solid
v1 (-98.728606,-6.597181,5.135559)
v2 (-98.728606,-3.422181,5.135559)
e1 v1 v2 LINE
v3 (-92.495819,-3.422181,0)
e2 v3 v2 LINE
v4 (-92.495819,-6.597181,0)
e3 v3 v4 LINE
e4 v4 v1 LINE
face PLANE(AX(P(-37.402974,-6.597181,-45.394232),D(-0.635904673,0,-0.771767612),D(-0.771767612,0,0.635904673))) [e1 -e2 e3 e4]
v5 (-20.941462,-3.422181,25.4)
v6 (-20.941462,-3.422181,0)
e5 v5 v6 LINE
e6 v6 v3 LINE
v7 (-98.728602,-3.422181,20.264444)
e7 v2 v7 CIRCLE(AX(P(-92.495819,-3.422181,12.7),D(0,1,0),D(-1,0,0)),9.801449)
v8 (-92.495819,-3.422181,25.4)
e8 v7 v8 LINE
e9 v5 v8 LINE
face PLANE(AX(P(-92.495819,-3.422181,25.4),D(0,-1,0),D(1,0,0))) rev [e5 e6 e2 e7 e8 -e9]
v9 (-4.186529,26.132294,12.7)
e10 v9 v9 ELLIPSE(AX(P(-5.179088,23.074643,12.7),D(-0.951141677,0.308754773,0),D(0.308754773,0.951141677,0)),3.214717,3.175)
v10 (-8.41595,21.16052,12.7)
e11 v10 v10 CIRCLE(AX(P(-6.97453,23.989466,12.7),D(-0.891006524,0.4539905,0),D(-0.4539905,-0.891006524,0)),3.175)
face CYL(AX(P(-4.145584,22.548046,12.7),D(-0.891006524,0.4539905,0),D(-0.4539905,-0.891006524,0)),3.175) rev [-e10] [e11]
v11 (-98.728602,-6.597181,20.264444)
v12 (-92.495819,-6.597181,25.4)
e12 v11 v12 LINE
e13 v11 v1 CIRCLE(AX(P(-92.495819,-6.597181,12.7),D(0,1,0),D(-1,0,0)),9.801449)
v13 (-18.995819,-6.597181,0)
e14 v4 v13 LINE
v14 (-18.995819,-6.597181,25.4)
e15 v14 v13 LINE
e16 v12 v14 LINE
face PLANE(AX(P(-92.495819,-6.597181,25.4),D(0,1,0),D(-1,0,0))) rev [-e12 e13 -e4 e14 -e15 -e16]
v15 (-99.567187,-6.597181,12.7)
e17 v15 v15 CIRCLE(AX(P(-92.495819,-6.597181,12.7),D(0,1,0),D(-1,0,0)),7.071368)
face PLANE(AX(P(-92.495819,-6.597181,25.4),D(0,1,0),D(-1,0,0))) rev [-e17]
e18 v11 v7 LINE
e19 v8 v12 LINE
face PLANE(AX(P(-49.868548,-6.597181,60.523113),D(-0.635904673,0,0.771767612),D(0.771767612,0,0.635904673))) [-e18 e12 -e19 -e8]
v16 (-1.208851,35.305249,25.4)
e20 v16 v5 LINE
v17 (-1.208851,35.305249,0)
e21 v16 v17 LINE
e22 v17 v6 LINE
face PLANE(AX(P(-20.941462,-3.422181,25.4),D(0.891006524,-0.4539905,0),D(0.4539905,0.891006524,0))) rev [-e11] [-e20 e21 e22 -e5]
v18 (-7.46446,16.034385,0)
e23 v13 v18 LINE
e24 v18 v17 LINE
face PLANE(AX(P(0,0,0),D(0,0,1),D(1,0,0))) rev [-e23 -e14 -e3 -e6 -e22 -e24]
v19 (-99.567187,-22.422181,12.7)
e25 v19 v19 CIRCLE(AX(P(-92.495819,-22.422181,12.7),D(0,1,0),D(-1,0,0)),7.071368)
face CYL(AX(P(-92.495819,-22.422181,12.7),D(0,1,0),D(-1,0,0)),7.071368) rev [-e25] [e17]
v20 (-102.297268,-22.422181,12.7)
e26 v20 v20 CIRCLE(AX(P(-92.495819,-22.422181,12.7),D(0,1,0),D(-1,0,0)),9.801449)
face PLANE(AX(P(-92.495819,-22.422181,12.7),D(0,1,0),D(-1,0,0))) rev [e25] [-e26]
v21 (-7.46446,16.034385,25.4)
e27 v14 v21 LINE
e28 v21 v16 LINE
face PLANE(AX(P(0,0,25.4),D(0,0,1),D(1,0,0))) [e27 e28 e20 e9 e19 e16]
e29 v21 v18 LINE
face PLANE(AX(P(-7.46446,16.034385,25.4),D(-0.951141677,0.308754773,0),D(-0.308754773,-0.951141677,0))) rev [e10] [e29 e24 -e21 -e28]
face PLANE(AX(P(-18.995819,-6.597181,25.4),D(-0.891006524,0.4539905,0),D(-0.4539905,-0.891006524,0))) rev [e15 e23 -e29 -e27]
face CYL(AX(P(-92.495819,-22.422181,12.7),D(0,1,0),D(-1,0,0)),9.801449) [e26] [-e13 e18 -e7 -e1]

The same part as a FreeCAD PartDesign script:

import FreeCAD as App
import Part
import Sketcher
from FreeCAD import Vector
Q = App.Units.Quantity


def add_polygon(sketch, points):
    """Adds a closed chain of lines whose ends are joined by coincident constraints."""
    first, n = sketch.GeometryCount, len(points)
    for a, b in zip(points, points[1:] + points[:1]):
        sketch.addGeometry(Part.LineSegment(App.Vector(*a, 0), App.Vector(*b, 0)), False)
    for i in range(n):
        sketch.addConstraint(Sketcher.Constraint("Coincident", first + i, 2, first + (i + 1) % n, 1))

doc = App.newDocument("Part")
body = doc.addObject("PartDesign::Body", "Body")

# Sketch on XY plane
sketch1 = body.newObject("Sketcher::SketchObject", "Sketch")
sketch1.AttachmentSupport = (doc.getObject("XY_Plane"), [""])
sketch1.MapMode = "FlatFace"
add_polygon(sketch1, [(-20.9, -3.4), (-92.5, -3.4), (-92.5, -6.6), (-19, -6.6), (-7.5, 16), (-1.2, 35.3)])  # lines 0-5
sketch1.addConstraint([
    Sketcher.Constraint("Horizontal", 0),
    Sketcher.Constraint("Vertical", 1),
    Sketcher.Constraint("Horizontal", 2),
    Sketcher.Constraint("Parallel", 3, 5),
    Sketcher.Constraint("Distance", 3, Q("1 in")),
    Sketcher.Constraint("Angle", 3, Q("63 deg")),
    Sketcher.Constraint("DistanceY", 1, 2, 1, 1, Q("0.125 in")),
    Sketcher.Constraint("DistanceX", 2, 1, 2, 2, 73.5),
    Sketcher.Constraint("DistanceX", 5, 2, 2, 2, Q("0.0766001 in")),
    Sketcher.Constraint("Distance", 4, 20.260771),
    Sketcher.Constraint("DistanceX", 0, 2, -1, 1, 92.495819),
    Sketcher.Constraint("DistanceY", 0, 2, -1, 1, 3.422181),
])
pad1 = body.newObject("PartDesign::Pad", "Pad")
pad1.Profile = sketch1
pad1.Length = Q("1 in")

# Sketch on XZ plane
sketch2 = body.newObject("Sketcher::SketchObject", "Sketch001")
sketch2.AttachmentSupport = (doc.getObject("XZ_Plane"), [""])
sketch2.MapMode = "FlatFace"
sketch2.AttachmentOffset = App.Placement(Vector(0, 0, 3.422181), App.Rotation())
sketch2.addGeometry([
    Part.Circle(Vector(-92, 13, 0), Vector(0, 0, 1), 10),
    Part.Circle(Vector(-92, 13, 0), Vector(0, 0, 1), 7),
], False)
sketch2.addConstraint([
    Sketcher.Constraint("Coincident", 1, 3, 0, 3),
    Sketcher.Constraint("DistanceY", -1, 1, 0, 3, Q("0.5 in")),
    Sketcher.Constraint("Diameter", 0, 19.602897),
    Sketcher.Constraint("Diameter", 1, 14.142736),
    Sketcher.Constraint("DistanceX", 0, 3, -1, 1, 92.495819),
])
pad2 = body.newObject("PartDesign::Pad", "Pad001")
pad2.Profile = sketch2
pad2.Length = 19

# Sketch on XZ plane
sketch3 = body.newObject("Sketcher::SketchObject", "Sketch002")
sketch3.AttachmentSupport = (doc.getObject("XZ_Plane"), [""])
sketch3.MapMode = "FlatFace"
sketch3.AttachmentOffset = App.Placement(Vector(0, 0, 3.422181), App.Rotation())
add_polygon(sketch3, [(-99, 20), (-92, 25), (-92, 0), (-99, 5), (-102, 13)])  # lines 0-4
sketch3.addConstraint([
    Sketcher.Constraint("Vertical", 1),
    Sketcher.Constraint("PointOnObject", 1, 2, -1),
    Sketcher.Constraint("Vertical", 2, 2, 4, 2),
    Sketcher.Constraint("Equal", 0, 2),
    Sketcher.Constraint("Equal", 3, 4),
    Sketcher.Constraint("DistanceY", 1, 2, 1, 1, Q("1 in")),
    Sketcher.Constraint("DistanceX", 2, 2, -1, 1, 98.728602),
    Sketcher.Constraint("DistanceX", 0, 2, -1, 1, 92.495819),
    Sketcher.Constraint("DistanceX", 3, 2, 0, 2, 9.801449),
    Sketcher.Constraint("DistanceY", 2, 2, 4, 2, 15.128889),
])
pad3 = body.newObject("PartDesign::Pad", "Pad002")
pad3.Profile = sketch3
pad3.Length = Q("0.125 in")

# Sketch on an angled plane
sketch4 = body.newObject("Sketcher::SketchObject", "Sketch003")
sketch4.Placement = App.Placement(Vector(-15.240971, 7.765663, 0), App.Rotation(Vector(0, 0, 1), Vector(0.4539905, 0.891006524, 0), Vector(-0.891006524, 0.4539905, 0), "ZXY"))
sketch4.addGeometry(Part.Circle(Vector(12.7, 18.2, 0), Vector(0, 0, 1), 3.2), False)
sketch4.addConstraint([
    Sketcher.Constraint("Diameter", 0, Q("0.25 in")),
    Sketcher.Constraint("DistanceX", -1, 1, 0, 3, Q("0.5 in")),
    Sketcher.Constraint("DistanceY", -1, 1, 0, 3, 18.208401),
])
pocket1 = body.newObject("PartDesign::Pocket", "Pocket")
pocket1.Profile = sketch4
pocket1.Length = Q("0.125 in")

doc.recompute()
